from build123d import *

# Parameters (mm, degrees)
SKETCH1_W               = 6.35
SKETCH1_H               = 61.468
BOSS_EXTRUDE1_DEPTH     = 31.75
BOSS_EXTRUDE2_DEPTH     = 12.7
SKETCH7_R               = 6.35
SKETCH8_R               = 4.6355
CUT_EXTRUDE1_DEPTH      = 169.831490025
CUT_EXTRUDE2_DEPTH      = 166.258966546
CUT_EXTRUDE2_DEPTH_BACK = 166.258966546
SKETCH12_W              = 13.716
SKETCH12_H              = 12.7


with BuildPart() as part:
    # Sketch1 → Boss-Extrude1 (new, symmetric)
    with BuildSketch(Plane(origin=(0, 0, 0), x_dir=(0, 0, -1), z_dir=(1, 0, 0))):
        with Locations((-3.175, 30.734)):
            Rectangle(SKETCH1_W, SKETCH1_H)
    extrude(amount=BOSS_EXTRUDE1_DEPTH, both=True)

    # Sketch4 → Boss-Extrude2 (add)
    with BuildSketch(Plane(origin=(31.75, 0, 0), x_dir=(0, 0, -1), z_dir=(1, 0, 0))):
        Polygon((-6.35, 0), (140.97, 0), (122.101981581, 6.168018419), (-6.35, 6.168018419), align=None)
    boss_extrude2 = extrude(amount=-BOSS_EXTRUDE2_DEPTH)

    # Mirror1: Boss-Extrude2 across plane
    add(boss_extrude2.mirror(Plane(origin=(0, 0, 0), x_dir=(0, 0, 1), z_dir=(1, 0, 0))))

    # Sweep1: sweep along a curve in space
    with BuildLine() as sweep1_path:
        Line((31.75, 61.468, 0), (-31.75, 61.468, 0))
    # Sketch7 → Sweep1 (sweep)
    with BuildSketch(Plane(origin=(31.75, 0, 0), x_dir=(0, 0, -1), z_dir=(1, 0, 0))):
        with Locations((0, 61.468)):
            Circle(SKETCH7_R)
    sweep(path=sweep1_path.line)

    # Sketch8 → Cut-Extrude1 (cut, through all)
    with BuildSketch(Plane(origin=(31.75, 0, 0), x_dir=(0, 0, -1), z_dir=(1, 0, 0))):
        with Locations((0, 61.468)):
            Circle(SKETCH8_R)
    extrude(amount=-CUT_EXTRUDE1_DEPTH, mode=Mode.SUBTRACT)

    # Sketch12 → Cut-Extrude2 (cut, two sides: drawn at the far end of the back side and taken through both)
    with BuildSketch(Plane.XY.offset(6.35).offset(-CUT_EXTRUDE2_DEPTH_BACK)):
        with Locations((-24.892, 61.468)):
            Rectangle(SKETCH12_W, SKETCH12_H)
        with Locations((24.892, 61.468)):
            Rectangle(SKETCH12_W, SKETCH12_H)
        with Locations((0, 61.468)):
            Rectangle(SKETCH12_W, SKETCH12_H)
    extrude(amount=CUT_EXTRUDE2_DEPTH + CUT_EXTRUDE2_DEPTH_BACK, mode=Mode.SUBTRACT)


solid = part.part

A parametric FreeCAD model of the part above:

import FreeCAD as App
import Part
import Sketcher
Q = App.Units.Quantity

doc = App.newDocument("Part")
params = doc.addObject("Spreadsheet::Sheet", "Params")
for row, (alias, value) in enumerate([
    ("sketch1_width", "2.42 in"),
    ("sketch1_height", "0.25 in"),
    ("pad1_length", "2.5 in"),
    ("sketch2_height", "5.8 in"),
    ("pad2_length", "0.5 in"),
    ("sketch3_diameter", "0.5 in"),
    ("sketch4_width", "2.5 in"),
    ("sketch5_diameter", "0.365 in"),
    ("sketch6_height", "0.5 in"),
    ("sketch6_width", "0.54 in"),
], start=1):
    params.set(f"A{row}", alias)
    params.set(f"B{row}", "=" + value)
    params.setAlias(f"B{row}", alias)

body = doc.addObject("PartDesign::Body", "Body")

# Sketch on YZ plane
sketch1 = body.newObject("Sketcher::SketchObject", "Sketch")
sketch1.AttachmentSupport = (doc.getObject("YZ_Plane"), [""])
sketch1.MapMode = "FlatFace"
sketch1.addGeometry([
    Part.LineSegment(App.Vector(61.468, 6.35, 0), App.Vector(0, 6.35, 0)),
    Part.LineSegment(App.Vector(0, 6.35, 0), App.Vector(0, 0, 0)),
    Part.LineSegment(App.Vector(0, 0, 0), App.Vector(61.468, 0, 0)),
    Part.LineSegment(App.Vector(61.468, 0, 0), App.Vector(61.468, 6.35, 0)),
], False)
sketch1.addConstraint([
    Sketcher.Constraint("Coincident", 0, 2, 1, 1),
    Sketcher.Constraint("Coincident", 1, 2, 2, 1),
    Sketcher.Constraint("Coincident", 2, 2, 3, 1),
    Sketcher.Constraint("Coincident", 3, 2, 0, 1),
    Sketcher.Constraint("Horizontal", 0),
    Sketcher.Constraint("Vertical", 1),
    Sketcher.Constraint("Horizontal", 2),
    Sketcher.Constraint("Vertical", 3),
    Sketcher.Constraint("Coincident", 1, 2, -1, 1),
    Sketcher.Constraint("DistanceX", 0, 2, 0, 1, Q("2.42 in")),
    Sketcher.Constraint("DistanceY", 1, 2, 1, 1, Q("0.25 in")),
])
sketch1.setExpression("Constraints[9]", "Params.sketch1_width")
sketch1.setExpression("Constraints[10]", "Params.sketch1_height")
pad1 = body.newObject("PartDesign::Pad", "Pad")
pad1.Profile = sketch1
pad1.setExpression("Length", "Params.pad1_length")
pad1.Midplane = True

# Sketch on YZ plane
sketch2 = body.newObject("Sketcher::SketchObject", "Sketch001")
sketch2.AttachmentSupport = (doc.getObject("YZ_Plane"), [""])
sketch2.MapMode = "FlatFace"
sketch2.AttachmentOffset = App.Placement(App.Vector(0, 0, 1.25 * 25.4), App.Rotation())
sketch2.addGeometry([
    Part.LineSegment(App.Vector(0, 6.35, 0), App.Vector(0, -140.97, 0)),
    Part.LineSegment(App.Vector(0, -140.97, 0), App.Vector(6.168018, -122.101982, 0)),
    Part.LineSegment(App.Vector(6.168018, -122.101982, 0), App.Vector(6.168018, 6.35, 0)),
    Part.LineSegment(App.Vector(6.168018, 6.35, 0), App.Vector(0, 6.35, 0)),
], False)
sketch2.addConstraint([
    Sketcher.Constraint("Coincident", 0, 2, 1, 1),
    Sketcher.Constraint("Coincident", 1, 2, 2, 1),
    Sketcher.Constraint("Coincident", 2, 2, 3, 1),
    Sketcher.Constraint("Coincident", 3, 2, 0, 1),
    Sketcher.Constraint("Vertical", 0),
    Sketcher.Constraint("Vertical", 2),
    Sketcher.Constraint("Horizontal", 3),
    Sketcher.Constraint("PointOnObject", 0, 2, -2),
    Sketcher.Constraint("DistanceY", 0, 2, 0, 1, Q("5.8 in")),
    Sketcher.Constraint("DistanceY", 0, 2, -1, 1, Q("5.55 in")),
    Sketcher.Constraint("DistanceX", 3, 2, 3, 1, 6.168018),
    Sketcher.Constraint("DistanceY", 2, 1, 2, 2, 128.451982),
])
sketch2.setExpression("Constraints[8]", "Params.sketch2_height")
pad2 = body.newObject("PartDesign::Pad", "Pad001")
pad2.Profile = sketch2
pad2.setExpression("Length", "Params.pad2_length")
pad2.Reversed = True
doc.recompute()

mirrored = body.newObject("PartDesign::Mirrored", "Mirrored")
mirrored.Originals = [pad2]
mirrored.MirrorPlane = (doc.getObject("YZ_Plane"), [""])
body.Tip = mirrored

# Sketch on YZ plane
sketch3 = body.newObject("Sketcher::SketchObject", "Sketch002")
sketch3.AttachmentSupport = (doc.getObject("YZ_Plane"), [""])
sketch3.MapMode = "FlatFace"
sketch3.AttachmentOffset = App.Placement(App.Vector(0, 0, 1.25 * 25.4), App.Rotation())
sketch3.addGeometry(Part.Circle(App.Vector(61.468, 0, 0), App.Vector(0, 0, 1), 6.35), False)
sketch3.addConstraint([
    Sketcher.Constraint("PointOnObject", 0, 3, -1),
    Sketcher.Constraint("Diameter", 0, Q("0.5 in")),
    Sketcher.Constraint("DistanceX", -1, 1, 0, 3, Q("2.42 in")),
])
sketch3.setExpression("Constraints[1]", "Params.sketch3_diameter")

# Sketch on XY plane
sketch4 = body.newObject("Sketcher::SketchObject", "Sketch003")
sketch4.AttachmentSupport = (doc.getObject("XY_Plane"), [""])
sketch4.MapMode = "FlatFace"
sketch4.addGeometry(Part.LineSegment(App.Vector(31.75, 61.468, 0), App.Vector(-31.75, 61.468, 0)), False)
sketch4.addConstraint([
    Sketcher.Constraint("Horizontal", 0),
    Sketcher.Constraint("DistanceX", 0, 2, 0, 1, Q("2.5 in")),
    Sketcher.Constraint("DistanceX", -1, 1, 0, 1, Q("1.25 in")),
    Sketcher.Constraint("DistanceY", -1, 1, 0, 1, Q("2.42 in")),
])
sketch4.setExpression("Constraints[1]", "Params.sketch4_width")
doc.recompute()

additivepipe = body.newObject("PartDesign::AdditivePipe", "AdditivePipe")
additivepipe.Profile = sketch3
additivepipe.Spine = (sketch4, ["Edge1"])

# Sketch on YZ plane
sketch5 = body.newObject("Sketcher::SketchObject", "Sketch004")
sketch5.AttachmentSupport = (doc.getObject("YZ_Plane"), [""])
sketch5.MapMode = "FlatFace"
sketch5.AttachmentOffset = App.Placement(App.Vector(0, 0, 1.25 * 25.4), App.Rotation())
sketch5.addGeometry(Part.Circle(App.Vector(61.468, 0, 0), App.Vector(0, 0, 1), 4.6355), False)
sketch5.addConstraint([
    Sketcher.Constraint("PointOnObject", 0, 3, -1),
    Sketcher.Constraint("Diameter", 0, Q("0.365 in")),
    Sketcher.Constraint("DistanceX", -1, 1, 0, 3, Q("2.42 in")),
])
sketch5.setExpression("Constraints[1]", "Params.sketch5_diameter")
pocket1 = body.newObject("PartDesign::Pocket", "Pocket")
pocket1.Profile = sketch5
pocket1.Type = "ThroughAll"

# Sketch on XY plane
sketch6 = body.newObject("Sketcher::SketchObject", "Sketch005")
sketch6.AttachmentSupport = (doc.getObject("XY_Plane"), [""])
sketch6.MapMode = "FlatFace"
sketch6.AttachmentOffset = App.Placement(App.Vector(0, 0, 0.25 * 25.4), App.Rotation())
sketch6.addGeometry([
    Part.LineSegment(App.Vector(-31.75, 67.818, 0), App.Vector(-31.75, 55.118, 0)),  # 0
    Part.LineSegment(App.Vector(-31.75, 55.118, 0), App.Vector(-18.034, 55.118, 0)),  # 1
    Part.LineSegment(App.Vector(-18.034, 55.118, 0), App.Vector(-18.034, 67.818, 0)),  # 2
    Part.LineSegment(App.Vector(-18.034, 67.818, 0), App.Vector(-31.75, 67.818, 0)),  # 3
    Part.LineSegment(App.Vector(18.034, 67.818, 0), App.Vector(18.034, 55.118, 0)),  # 4
    Part.LineSegment(App.Vector(18.034, 55.118, 0), App.Vector(31.75, 55.118, 0)),  # 5
    Part.LineSegment(App.Vector(31.75, 55.118, 0), App.Vector(31.75, 67.818, 0)),  # 6
    Part.LineSegment(App.Vector(31.75, 67.818, 0), App.Vector(18.034, 67.818, 0)),  # 7
    Part.LineSegment(App.Vector(-6.858, 67.818, 0), App.Vector(-6.858, 55.118, 0)),  # 8
    Part.LineSegment(App.Vector(-6.858, 55.118, 0), App.Vector(6.858, 55.118, 0)),  # 9
    Part.LineSegment(App.Vector(6.858, 55.118, 0), App.Vector(6.858, 67.818, 0)),  # 10
    Part.LineSegment(App.Vector(6.858, 67.818, 0), App.Vector(-6.858, 67.818, 0)),  # 11
], False)
sketch6.addConstraint([
    Sketcher.Constraint("Coincident", 0, 2, 1, 1),
    Sketcher.Constraint("Coincident", 1, 2, 2, 1),
    Sketcher.Constraint("Coincident", 2, 2, 3, 1),
    Sketcher.Constraint("Coincident", 3, 2, 0, 1),
    Sketcher.Constraint("Coincident", 4, 2, 5, 1),
    Sketcher.Constraint("Coincident", 5, 2, 6, 1),
    Sketcher.Constraint("Coincident", 6, 2, 7, 1),
    Sketcher.Constraint("Coincident", 7, 2, 4, 1),
    Sketcher.Constraint("Coincident", 8, 2, 9, 1),
    Sketcher.Constraint("Coincident", 9, 2, 10, 1),
    Sketcher.Constraint("Coincident", 10, 2, 11, 1),
    Sketcher.Constraint("Coincident", 11, 2, 8, 1),
    Sketcher.Constraint("Vertical", 0),
    Sketcher.Constraint("Horizontal", 1),
    Sketcher.Constraint("Vertical", 2),
    Sketcher.Constraint("Horizontal", 3),
    Sketcher.Constraint("Vertical", 4),
    Sketcher.Constraint("Horizontal", 5),
    Sketcher.Constraint("Vertical", 6),
    Sketcher.Constraint("Horizontal", 7),
    Sketcher.Constraint("Vertical", 8),
    Sketcher.Constraint("Horizontal", 9),
    Sketcher.Constraint("Vertical", 10),
    Sketcher.Constraint("Horizontal", 11),
    Sketcher.Constraint("Symmetric", 1, 2, 4, 2, -2),
    Sketcher.Constraint("Symmetric", 3, 2, 6, 2, -2),
    Sketcher.Constraint("Horizontal", 5, 2, 8, 2),
    Sketcher.Constraint("Horizontal", 7, 2, 10, 2),
    Sketcher.Constraint("Equal", 7, 9),
    Sketcher.Constraint("DistanceY", 0, 2, 0, 1, Q("0.5 in")),
    Sketcher.Constraint("DistanceX", 1, 1, 1, 2, Q("0.54 in")),
    Sketcher.Constraint("DistanceX", 0, 2, 5, 2, Q("2.5 in")),
    Sketcher.Constraint("DistanceY", -1, 1, 0, 2, Q("2.17 in")),
    Sketcher.Constraint("DistanceX", 8, 2, -1, 1, Q("0.27 in")),
])
sketch6.setExpression("Constraints[29]", "Params.sketch6_height")
sketch6.setExpression("Constraints[30]", "Params.sketch6_width")
pocket2 = body.newObject("PartDesign::Pocket", "Pocket001")
pocket2.Profile = sketch6
pocket2.Type = "ThroughAll"
pocket2.Midplane = True

doc.recompute()
